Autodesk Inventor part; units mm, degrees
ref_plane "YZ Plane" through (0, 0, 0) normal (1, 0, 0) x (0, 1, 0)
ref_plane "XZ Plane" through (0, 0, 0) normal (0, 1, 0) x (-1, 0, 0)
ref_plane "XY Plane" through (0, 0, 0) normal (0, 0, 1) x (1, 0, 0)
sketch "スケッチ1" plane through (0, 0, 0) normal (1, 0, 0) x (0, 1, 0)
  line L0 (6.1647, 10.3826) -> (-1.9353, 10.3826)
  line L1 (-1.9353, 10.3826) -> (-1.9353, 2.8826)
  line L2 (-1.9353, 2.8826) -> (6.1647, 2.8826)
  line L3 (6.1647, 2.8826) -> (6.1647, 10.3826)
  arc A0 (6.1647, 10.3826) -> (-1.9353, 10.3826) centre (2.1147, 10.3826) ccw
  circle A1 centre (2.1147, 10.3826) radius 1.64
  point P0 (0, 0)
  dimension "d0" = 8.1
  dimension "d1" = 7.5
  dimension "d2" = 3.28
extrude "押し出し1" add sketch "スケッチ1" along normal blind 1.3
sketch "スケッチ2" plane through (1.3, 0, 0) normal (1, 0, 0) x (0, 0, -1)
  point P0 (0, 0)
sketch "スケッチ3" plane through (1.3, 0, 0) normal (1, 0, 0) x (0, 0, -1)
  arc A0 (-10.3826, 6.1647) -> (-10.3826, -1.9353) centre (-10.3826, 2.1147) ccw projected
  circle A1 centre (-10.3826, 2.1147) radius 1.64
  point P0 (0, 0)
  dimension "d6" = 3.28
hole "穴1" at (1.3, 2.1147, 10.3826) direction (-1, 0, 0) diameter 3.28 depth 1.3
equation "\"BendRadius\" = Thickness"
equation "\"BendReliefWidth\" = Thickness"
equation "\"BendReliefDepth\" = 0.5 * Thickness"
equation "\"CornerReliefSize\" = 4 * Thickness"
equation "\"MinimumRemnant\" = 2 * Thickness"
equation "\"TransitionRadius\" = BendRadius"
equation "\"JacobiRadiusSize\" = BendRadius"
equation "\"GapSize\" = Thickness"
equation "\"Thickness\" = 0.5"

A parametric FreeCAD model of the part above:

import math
import FreeCAD as App
import Part
import Sketcher

doc = App.newDocument("Part")
body = doc.addObject("PartDesign::Body", "Body")

# Sketch on YZ plane
sketch1 = doc.addObject("Sketcher::SketchObject", "Sketch")
body.addObject(sketch1)
sketch1.AttachmentSupport = (doc.YZ_Plane, [""])
sketch1.MapMode = "FlatFace"
sketch1.addGeometry(Part.LineSegment(App.Vector(6.2, 2.9, 0), App.Vector(6.2, 10.4, 0)), False)
sketch1.addGeometry(Part.ArcOfCircle(Part.Circle(App.Vector(2.1, 10.4, 0), App.Vector(0, 0, 1), 4), math.radians(0), math.radians(180)), False)
sketch1.addGeometry(Part.LineSegment(App.Vector(-1.9, 10.4, 0), App.Vector(-1.9, 2.9, 0)), False)
sketch1.addGeometry(Part.LineSegment(App.Vector(-1.9, 2.9, 0), App.Vector(6.2, 2.9, 0)), False)
sketch1.addConstraint(Sketcher.Constraint("Tangent", 0, 2, 1, 1))
sketch1.addConstraint(Sketcher.Constraint("Tangent", 1, 2, 2, 1))
sketch1.addConstraint(Sketcher.Constraint("Coincident", 2, 2, 3, 1))
sketch1.addConstraint(Sketcher.Constraint("Coincident", 3, 2, 0, 1))
sketch1.addConstraint(Sketcher.Constraint("Vertical", 0))
sketch1.addConstraint(Sketcher.Constraint("Vertical", 2))
sketch1.addConstraint(Sketcher.Constraint("Horizontal", 3))
sketch1.addConstraint(Sketcher.Constraint("Radius", 1, 4.05))
sketch1.addConstraint(Sketcher.Constraint("DistanceY", 0, 1, 0, 2, 7.5))
sketch1.addConstraint(Sketcher.Constraint("DistanceX", -1, 1, 1, 3, 2.1147))
sketch1.addConstraint(Sketcher.Constraint("DistanceY", -1, 1, 1, 3, 10.3826))
pad1 = doc.addObject("PartDesign::Pad", "Pad")
body.addObject(pad1)
pad1.Profile = sketch1
pad1.Length = 1.3

# Sketch on YZ plane
sketch2 = doc.addObject("Sketcher::SketchObject", "Sketch001")
body.addObject(sketch2)
sketch2.AttachmentSupport = (doc.YZ_Plane, [""])
sketch2.MapMode = "FlatFace"
sketch2.AttachmentOffset = App.Placement(App.Vector(0, 0, 1.3), App.Rotation())
sketch2.addGeometry(Part.Circle(App.Vector(2.1, 10.4, 0), App.Vector(0, 0, 1), 1.6), False)
sketch2.addConstraint(Sketcher.Constraint("Diameter", 0, 3.28))
sketch2.addConstraint(Sketcher.Constraint("DistanceX", -1, 1, 0, 3, 2.1147))
sketch2.addConstraint(Sketcher.Constraint("DistanceY", -1, 1, 0, 3, 10.3826))
doc.recompute()
hole = doc.addObject("PartDesign::Hole", "Hole")
body.addObject(hole)
hole.Profile = sketch2
hole.ThreadType = "None"
hole.Diameter = 3.28
hole.DepthType = "Dimension"
hole.Depth = 1.3
hole.DrillPoint = "Flat"

doc.recompute()
